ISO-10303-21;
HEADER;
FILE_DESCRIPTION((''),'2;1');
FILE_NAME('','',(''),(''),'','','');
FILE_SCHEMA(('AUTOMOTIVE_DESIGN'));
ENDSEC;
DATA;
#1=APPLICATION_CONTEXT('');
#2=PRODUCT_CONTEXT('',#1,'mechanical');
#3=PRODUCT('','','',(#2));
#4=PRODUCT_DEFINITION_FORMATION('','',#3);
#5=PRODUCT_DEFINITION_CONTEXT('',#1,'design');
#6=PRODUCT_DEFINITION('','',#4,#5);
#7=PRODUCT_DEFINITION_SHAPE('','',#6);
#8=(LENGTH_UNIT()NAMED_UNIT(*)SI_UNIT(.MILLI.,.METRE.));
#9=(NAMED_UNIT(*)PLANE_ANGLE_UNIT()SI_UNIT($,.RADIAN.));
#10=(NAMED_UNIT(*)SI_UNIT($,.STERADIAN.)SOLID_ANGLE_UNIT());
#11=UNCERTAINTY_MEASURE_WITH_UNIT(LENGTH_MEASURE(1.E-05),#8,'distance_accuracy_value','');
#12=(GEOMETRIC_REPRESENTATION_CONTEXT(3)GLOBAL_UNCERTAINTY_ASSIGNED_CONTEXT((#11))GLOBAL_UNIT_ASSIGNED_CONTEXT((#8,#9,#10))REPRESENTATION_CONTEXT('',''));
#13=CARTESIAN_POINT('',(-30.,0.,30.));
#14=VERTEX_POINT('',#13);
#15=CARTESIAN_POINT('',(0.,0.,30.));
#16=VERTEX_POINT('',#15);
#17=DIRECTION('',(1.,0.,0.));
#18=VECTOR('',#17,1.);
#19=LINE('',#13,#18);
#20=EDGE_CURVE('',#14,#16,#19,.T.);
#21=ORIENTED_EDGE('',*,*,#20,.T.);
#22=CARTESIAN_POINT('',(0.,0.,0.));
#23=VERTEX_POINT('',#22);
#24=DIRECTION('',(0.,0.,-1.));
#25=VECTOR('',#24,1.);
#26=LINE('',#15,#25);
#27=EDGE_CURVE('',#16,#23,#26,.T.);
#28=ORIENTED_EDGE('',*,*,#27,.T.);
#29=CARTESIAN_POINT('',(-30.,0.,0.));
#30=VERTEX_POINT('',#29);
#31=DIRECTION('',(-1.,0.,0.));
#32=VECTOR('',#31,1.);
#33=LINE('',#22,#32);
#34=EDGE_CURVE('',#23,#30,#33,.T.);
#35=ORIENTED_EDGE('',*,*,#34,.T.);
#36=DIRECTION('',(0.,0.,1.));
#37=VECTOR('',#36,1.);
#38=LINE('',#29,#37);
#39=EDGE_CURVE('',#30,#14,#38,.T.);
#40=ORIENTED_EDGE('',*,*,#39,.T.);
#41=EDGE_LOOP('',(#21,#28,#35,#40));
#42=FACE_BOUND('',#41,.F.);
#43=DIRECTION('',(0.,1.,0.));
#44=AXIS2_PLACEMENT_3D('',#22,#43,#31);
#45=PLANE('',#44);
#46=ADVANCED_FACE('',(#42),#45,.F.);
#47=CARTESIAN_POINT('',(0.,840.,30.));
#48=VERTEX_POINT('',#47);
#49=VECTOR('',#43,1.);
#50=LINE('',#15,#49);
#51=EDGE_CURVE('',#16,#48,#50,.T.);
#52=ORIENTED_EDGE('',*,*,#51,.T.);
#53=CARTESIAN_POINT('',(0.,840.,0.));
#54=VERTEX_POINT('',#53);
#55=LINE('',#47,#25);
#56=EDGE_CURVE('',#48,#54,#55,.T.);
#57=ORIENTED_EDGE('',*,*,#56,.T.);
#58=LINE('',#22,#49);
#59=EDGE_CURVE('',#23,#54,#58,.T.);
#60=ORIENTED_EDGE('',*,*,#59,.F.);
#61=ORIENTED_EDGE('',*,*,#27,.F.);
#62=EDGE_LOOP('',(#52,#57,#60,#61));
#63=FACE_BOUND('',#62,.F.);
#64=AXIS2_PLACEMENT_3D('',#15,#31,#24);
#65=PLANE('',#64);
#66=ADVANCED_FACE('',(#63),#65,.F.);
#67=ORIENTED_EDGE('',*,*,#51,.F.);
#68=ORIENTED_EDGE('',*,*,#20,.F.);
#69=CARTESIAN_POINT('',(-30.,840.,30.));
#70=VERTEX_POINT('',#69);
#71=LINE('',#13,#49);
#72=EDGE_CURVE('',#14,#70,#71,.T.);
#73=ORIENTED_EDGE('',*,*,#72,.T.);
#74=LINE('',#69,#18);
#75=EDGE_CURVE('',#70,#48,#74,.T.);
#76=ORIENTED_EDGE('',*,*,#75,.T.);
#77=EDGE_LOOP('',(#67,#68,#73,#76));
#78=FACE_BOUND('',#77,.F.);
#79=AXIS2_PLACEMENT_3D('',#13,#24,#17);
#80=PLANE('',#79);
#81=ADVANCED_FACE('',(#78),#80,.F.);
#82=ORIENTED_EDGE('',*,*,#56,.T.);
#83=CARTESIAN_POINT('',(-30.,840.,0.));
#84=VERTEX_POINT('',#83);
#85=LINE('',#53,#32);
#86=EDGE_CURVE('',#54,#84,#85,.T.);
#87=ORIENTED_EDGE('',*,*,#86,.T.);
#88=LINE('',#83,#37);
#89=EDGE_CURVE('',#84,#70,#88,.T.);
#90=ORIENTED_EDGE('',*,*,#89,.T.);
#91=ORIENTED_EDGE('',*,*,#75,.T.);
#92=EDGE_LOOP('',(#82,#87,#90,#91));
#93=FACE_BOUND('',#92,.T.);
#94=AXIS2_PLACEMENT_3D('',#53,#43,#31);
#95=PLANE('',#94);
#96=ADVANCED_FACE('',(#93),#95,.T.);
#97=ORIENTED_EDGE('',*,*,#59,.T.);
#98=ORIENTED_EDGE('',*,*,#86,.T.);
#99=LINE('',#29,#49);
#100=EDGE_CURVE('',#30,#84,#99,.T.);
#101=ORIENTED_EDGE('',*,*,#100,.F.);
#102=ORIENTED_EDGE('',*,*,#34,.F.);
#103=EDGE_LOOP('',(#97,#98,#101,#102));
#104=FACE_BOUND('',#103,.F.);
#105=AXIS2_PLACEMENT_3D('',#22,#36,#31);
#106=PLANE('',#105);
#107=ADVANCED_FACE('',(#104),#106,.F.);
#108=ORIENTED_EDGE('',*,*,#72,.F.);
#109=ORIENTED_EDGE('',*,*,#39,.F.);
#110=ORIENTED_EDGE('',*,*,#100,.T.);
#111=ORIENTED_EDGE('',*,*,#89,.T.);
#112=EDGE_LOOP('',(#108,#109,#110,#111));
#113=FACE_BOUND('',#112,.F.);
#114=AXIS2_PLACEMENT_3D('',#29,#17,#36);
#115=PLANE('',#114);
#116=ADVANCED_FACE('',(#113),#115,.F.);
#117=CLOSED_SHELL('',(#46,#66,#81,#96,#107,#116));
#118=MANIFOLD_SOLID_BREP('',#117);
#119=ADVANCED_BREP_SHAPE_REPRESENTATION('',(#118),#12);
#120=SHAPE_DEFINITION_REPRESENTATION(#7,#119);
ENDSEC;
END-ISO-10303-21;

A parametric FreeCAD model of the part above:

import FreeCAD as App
import Part
import Sketcher

V = App.Vector


def add_polygon(sketch, points):
    """Adds a closed chain of lines whose ends are joined by coincident constraints."""
    first, n = sketch.GeometryCount, len(points)
    for a, b in zip(points, points[1:] + points[:1]):
        sketch.addGeometry(Part.LineSegment(App.Vector(*a, 0), App.Vector(*b, 0)), False)
    for i in range(n):
        sketch.addConstraint(Sketcher.Constraint("Coincident", first + i, 2, first + (i + 1) % n, 1))

doc = App.newDocument("Part")
body = doc.addObject("PartDesign::Body", "Body")

# Sketch on XZ plane
sketch1 = body.newObject("Sketcher::SketchObject", "Sketch")
sketch1.AttachmentSupport = (doc.getObject("XZ_Plane"), [""])
sketch1.MapMode = "FlatFace"
add_polygon(sketch1, [(0, 30), (0, 0), (-30, 0), (-30, 30)])  # lines 0-3
sketch1.addConstraint(Sketcher.Constraint("Vertical", 0))
sketch1.addConstraint(Sketcher.Constraint("Horizontal", 1))
sketch1.addConstraint(Sketcher.Constraint("Vertical", 2))
sketch1.addConstraint(Sketcher.Constraint("Horizontal", 3))
sketch1.addConstraint(Sketcher.Constraint("Coincident", 0, 2, -1, 1))
sketch1.addConstraint(Sketcher.Constraint("Equal", 3, 0))
sketch1.addConstraint(Sketcher.Constraint("DistanceX", 1, 2, 1, 1, 30.0))
pad1 = body.newObject("PartDesign::Pad", "Pad")
pad1.Profile = sketch1
pad1.Length = 840
pad1.Reversed = True

doc.recompute()
